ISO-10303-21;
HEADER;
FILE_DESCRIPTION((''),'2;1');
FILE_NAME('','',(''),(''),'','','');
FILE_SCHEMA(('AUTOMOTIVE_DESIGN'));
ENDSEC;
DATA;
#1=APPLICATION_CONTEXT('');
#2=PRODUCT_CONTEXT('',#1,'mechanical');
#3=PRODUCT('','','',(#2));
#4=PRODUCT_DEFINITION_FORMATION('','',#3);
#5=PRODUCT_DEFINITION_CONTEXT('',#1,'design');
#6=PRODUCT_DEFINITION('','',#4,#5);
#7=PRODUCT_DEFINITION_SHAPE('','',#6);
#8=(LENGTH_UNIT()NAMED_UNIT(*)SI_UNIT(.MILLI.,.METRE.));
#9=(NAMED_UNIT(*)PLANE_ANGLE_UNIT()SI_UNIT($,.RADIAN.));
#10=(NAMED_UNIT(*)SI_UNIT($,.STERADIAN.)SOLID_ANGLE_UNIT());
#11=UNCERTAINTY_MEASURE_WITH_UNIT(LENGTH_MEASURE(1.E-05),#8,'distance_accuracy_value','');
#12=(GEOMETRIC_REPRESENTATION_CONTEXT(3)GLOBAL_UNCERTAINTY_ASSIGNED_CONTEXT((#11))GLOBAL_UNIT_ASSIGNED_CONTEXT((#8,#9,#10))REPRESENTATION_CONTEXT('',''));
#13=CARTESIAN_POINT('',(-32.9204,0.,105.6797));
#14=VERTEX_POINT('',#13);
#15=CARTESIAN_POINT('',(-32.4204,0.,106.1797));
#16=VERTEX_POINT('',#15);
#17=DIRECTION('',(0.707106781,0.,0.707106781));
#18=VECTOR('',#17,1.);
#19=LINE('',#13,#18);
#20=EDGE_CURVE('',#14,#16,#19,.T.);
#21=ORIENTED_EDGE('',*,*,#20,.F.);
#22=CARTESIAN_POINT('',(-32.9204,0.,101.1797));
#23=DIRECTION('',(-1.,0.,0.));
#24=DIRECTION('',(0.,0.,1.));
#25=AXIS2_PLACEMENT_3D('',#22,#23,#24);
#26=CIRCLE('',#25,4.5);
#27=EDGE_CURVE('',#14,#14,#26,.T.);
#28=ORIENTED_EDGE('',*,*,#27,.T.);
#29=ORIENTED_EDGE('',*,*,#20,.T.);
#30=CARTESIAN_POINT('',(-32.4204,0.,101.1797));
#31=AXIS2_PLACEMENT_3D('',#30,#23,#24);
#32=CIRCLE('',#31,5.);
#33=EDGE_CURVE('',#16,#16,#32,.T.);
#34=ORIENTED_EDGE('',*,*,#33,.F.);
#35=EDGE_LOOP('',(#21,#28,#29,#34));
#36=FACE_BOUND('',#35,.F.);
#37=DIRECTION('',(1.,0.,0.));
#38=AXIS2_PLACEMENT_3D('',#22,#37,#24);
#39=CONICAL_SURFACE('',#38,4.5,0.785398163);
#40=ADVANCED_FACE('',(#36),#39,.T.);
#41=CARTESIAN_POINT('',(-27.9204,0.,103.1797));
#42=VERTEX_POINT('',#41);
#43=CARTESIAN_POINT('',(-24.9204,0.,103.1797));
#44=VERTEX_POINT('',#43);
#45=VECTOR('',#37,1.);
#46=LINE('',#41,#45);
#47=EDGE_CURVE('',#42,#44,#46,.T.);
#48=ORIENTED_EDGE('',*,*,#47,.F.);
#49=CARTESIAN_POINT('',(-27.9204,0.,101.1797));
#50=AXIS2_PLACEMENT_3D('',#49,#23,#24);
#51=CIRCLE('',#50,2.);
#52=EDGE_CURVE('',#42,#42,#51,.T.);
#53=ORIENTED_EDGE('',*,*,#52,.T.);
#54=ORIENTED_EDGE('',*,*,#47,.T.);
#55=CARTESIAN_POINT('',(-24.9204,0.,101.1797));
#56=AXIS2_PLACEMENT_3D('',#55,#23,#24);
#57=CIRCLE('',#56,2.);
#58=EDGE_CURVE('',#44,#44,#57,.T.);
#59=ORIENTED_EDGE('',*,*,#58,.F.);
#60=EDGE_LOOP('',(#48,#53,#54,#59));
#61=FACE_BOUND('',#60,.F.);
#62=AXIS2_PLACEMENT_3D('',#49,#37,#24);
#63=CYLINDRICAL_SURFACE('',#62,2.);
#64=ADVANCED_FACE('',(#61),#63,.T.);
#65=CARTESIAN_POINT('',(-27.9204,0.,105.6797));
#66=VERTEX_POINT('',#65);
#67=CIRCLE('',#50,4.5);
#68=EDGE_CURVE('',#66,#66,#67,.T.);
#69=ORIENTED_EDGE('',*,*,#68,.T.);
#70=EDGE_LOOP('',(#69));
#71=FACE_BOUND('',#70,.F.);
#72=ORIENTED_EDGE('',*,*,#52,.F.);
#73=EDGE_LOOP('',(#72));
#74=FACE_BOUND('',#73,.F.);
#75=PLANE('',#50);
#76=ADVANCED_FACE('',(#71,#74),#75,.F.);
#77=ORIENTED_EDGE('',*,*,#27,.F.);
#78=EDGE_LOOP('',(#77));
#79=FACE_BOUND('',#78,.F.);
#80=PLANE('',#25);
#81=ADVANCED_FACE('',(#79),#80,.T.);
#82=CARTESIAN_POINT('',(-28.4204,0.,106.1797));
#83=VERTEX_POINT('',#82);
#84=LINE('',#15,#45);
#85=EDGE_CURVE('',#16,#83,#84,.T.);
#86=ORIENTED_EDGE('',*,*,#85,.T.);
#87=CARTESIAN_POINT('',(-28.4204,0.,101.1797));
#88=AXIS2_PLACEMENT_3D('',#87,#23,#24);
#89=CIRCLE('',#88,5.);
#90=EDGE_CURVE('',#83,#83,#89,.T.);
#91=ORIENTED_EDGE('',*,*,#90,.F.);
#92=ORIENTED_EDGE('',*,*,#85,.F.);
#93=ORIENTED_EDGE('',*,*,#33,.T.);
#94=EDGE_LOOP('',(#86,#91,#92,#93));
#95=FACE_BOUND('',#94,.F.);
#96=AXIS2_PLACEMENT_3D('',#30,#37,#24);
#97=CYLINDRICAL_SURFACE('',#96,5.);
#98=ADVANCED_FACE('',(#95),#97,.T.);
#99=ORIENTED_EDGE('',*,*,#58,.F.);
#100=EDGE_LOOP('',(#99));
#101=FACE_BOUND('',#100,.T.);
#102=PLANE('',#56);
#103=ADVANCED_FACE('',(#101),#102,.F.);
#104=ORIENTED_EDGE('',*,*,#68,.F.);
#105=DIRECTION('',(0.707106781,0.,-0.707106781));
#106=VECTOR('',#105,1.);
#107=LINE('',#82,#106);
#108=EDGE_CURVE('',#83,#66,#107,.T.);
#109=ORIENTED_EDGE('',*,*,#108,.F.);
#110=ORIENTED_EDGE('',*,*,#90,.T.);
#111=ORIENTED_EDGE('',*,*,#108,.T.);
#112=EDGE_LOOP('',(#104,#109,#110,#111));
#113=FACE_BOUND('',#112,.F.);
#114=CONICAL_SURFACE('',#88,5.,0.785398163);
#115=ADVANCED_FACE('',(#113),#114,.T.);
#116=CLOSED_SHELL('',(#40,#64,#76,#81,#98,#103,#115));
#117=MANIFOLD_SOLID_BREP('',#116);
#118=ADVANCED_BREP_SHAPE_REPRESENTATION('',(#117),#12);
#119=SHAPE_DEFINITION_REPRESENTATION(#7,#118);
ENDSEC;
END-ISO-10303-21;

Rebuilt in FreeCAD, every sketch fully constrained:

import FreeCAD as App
import Part
import Sketcher

V = App.Vector

doc = App.newDocument("Part")
body = doc.addObject("PartDesign::Body", "Body")

# Sketch on XZ plane
sketch1 = body.newObject("Sketcher::SketchObject", "Sketch")
sketch1.AttachmentSupport = (doc.getObject("XZ_Plane"), [""])
sketch1.MapMode = "FlatFace"
sketch1.addGeometry([
    Part.LineSegment(V(-24.9, 103.2, 0), V(-24.9, 101.2, 0)),  # 0
    Part.LineSegment(V(-24.9, 101.2, 0), V(-32.9, 101.2, 0)),  # 1
    Part.LineSegment(V(-32.9, 101.2, 0), V(-32.9, 105.7, 0)),  # 2
    Part.LineSegment(V(-32.9, 105.7, 0), V(-32.4, 106.2, 0)),  # 3
    Part.LineSegment(V(-32.4, 106.2, 0), V(-28.4, 106.2, 0)),  # 4
    Part.LineSegment(V(-28.4, 106.2, 0), V(-27.9, 105.7, 0)),  # 5
    Part.LineSegment(V(-27.9, 105.7, 0), V(-27.9, 103.2, 0)),  # 6
    Part.LineSegment(V(-27.9, 103.2, 0), V(-24.9, 103.2, 0)),  # 7
], False)
sketch1.addGeometry(Part.LineSegment(V(-24.9, 101.2, 0), V(-32.9, 101.2, 0)), True)  # axis
sketch1.addConstraint([
    Sketcher.Constraint("Coincident", 0, 2, 1, 1),
    Sketcher.Constraint("Coincident", 1, 2, 2, 1),
    Sketcher.Constraint("Coincident", 2, 2, 3, 1),
    Sketcher.Constraint("Coincident", 3, 2, 4, 1),
    Sketcher.Constraint("Coincident", 4, 2, 5, 1),
    Sketcher.Constraint("Coincident", 5, 2, 6, 1),
    Sketcher.Constraint("Coincident", 6, 2, 7, 1),
    Sketcher.Constraint("Coincident", 7, 2, 0, 1),
    Sketcher.Constraint("Vertical", 0),
    Sketcher.Constraint("Horizontal", 1),
    Sketcher.Constraint("Vertical", 2),
    Sketcher.Constraint("Horizontal", 4),
    Sketcher.Constraint("Vertical", 6),
    Sketcher.Constraint("Horizontal", 7),
    Sketcher.Constraint("Horizontal", 8),
    Sketcher.Constraint("Coincident", 8, 1, 0, 2),
    Sketcher.Constraint("Perpendicular", 3, 5),
    Sketcher.Constraint("Horizontal", 2, 2, 5, 2),
    Sketcher.Constraint("Vertical", 2, 2, 8, 2),
    Sketcher.Constraint("Equal", 3, 5),
    Sketcher.Constraint("DistanceX", 1, 2, 1, 1, 8.0),
    Sketcher.Constraint("DistanceX", 4, 1, 4, 2, 4.0),
    Sketcher.Constraint("DistanceX", 7, 1, 7, 2, 3.0),
    Sketcher.Constraint("DistanceY", 0, 2, 0, 1, 2.0),
    Sketcher.Constraint("DistanceY", 2, 1, 2, 2, 4.5),
    Sketcher.Constraint("DistanceX", 0, 2, -1, 1, 24.9204),
    Sketcher.Constraint("DistanceY", -1, 1, 0, 2, 101.1797),
])
revolution = body.newObject("PartDesign::Revolution", "Revolution")
revolution.Profile = sketch1
revolution.ReferenceAxis = (sketch1, ["Axis0"])
revolution.Angle = 360

doc.recompute()
